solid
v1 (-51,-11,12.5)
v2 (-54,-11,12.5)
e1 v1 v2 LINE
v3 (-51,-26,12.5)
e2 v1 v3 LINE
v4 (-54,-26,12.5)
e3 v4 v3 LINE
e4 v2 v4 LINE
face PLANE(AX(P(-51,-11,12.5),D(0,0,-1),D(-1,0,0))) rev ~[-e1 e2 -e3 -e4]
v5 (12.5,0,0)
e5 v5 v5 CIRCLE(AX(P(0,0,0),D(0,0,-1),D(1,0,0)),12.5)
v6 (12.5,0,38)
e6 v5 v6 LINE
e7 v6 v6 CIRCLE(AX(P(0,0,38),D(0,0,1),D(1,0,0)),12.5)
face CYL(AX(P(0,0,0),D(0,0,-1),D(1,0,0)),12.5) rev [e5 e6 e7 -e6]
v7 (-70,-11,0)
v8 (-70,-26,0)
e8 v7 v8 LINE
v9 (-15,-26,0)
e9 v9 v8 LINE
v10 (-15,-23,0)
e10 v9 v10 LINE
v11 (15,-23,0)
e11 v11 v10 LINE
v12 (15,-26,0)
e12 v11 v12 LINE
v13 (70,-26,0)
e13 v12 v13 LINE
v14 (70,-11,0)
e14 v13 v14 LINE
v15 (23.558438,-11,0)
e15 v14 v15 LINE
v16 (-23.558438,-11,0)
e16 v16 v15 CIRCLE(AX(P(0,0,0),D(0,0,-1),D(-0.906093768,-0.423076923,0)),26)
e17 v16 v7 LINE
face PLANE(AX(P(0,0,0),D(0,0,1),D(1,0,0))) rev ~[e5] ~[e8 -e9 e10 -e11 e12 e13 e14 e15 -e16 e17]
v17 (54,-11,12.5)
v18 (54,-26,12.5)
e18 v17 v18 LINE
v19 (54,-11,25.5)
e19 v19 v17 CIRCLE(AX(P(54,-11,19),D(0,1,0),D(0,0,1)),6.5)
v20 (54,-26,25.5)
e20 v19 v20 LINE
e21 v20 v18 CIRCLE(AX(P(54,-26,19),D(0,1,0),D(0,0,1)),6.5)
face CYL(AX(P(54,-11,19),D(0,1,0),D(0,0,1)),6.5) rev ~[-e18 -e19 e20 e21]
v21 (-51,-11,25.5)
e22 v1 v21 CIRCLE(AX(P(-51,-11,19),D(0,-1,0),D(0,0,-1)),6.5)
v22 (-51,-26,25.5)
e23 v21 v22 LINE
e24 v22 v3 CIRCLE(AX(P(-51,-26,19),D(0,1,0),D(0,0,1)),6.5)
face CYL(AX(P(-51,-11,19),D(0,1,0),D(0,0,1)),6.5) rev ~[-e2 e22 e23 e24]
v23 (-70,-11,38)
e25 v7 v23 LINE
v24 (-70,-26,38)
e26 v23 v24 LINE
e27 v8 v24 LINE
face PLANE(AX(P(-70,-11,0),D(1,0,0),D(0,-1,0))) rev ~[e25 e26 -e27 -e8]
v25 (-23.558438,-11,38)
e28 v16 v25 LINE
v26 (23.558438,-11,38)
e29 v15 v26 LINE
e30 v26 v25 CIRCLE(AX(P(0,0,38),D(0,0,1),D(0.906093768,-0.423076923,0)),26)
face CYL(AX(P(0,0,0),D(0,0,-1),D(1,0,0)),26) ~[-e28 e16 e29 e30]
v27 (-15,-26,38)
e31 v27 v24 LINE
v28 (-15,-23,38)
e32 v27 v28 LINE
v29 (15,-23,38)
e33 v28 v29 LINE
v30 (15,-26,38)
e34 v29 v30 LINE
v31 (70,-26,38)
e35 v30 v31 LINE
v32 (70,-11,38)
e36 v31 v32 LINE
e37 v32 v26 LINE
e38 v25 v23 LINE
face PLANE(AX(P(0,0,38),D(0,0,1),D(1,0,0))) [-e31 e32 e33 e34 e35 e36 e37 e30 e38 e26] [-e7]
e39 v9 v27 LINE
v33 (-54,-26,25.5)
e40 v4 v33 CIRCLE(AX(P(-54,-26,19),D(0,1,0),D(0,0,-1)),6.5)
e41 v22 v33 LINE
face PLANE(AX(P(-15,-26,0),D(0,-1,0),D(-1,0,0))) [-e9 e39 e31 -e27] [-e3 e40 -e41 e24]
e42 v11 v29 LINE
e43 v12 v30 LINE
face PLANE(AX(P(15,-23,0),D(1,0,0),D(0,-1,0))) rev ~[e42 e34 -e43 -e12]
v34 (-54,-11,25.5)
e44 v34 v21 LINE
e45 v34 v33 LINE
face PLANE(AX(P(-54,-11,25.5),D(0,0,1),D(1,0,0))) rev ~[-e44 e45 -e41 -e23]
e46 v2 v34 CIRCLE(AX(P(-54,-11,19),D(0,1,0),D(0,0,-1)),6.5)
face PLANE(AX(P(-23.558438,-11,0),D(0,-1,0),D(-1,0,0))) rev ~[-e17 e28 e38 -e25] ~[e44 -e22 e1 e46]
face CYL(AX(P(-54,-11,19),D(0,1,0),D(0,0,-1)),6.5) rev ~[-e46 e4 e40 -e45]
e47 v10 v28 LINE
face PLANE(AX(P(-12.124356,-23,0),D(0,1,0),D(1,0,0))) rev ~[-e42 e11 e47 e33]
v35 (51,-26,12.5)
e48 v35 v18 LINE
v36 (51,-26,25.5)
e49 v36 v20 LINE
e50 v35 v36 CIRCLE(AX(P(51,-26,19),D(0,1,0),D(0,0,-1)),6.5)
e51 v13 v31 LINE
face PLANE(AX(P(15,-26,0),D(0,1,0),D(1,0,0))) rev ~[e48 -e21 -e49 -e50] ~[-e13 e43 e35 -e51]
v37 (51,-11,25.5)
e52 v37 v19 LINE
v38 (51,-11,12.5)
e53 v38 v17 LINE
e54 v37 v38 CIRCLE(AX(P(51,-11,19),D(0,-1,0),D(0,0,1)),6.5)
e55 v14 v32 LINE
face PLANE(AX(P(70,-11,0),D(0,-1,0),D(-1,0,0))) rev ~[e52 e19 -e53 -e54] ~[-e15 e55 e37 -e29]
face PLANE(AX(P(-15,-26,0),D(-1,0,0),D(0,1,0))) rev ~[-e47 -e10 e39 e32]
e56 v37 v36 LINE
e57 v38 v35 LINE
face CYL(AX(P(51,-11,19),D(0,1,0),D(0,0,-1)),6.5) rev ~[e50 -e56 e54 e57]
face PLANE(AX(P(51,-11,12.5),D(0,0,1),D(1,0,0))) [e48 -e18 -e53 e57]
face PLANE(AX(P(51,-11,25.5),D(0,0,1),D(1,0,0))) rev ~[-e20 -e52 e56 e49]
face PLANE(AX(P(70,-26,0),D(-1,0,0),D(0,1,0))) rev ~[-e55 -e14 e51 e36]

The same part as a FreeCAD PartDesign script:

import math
import FreeCAD as App
import Part
import Sketcher
Q = App.Units.Quantity

doc = App.newDocument("Part")
body = doc.addObject("PartDesign::Body", "Body")

# Sketch on XY plane
sketch1 = body.newObject("Sketcher::SketchObject", "Sketch")
sketch1.AttachmentSupport = (doc.getObject("XY_Plane"), [""])
sketch1.MapMode = "FlatFace"
sketch1.addGeometry(Part.LineSegment(App.Vector(-23.6, -11, 0), App.Vector(-70, -11, 0)), False)
sketch1.addGeometry(Part.LineSegment(App.Vector(-70, -11, 0), App.Vector(-70, -26, 0)), False)
sketch1.addGeometry(Part.LineSegment(App.Vector(-70, -26, 0), App.Vector(-15, -26, 0)), False)
sketch1.addGeometry(Part.LineSegment(App.Vector(-15, -26, 0), App.Vector(-15, -23, 0)), False)
sketch1.addGeometry(Part.LineSegment(App.Vector(-15, -23, 0), App.Vector(15, -23, 0)), False)
sketch1.addGeometry(Part.LineSegment(App.Vector(15, -23, 0), App.Vector(15, -26, 0)), False)
sketch1.addGeometry(Part.LineSegment(App.Vector(15, -26, 0), App.Vector(70, -26, 0)), False)
sketch1.addGeometry(Part.LineSegment(App.Vector(70, -26, 0), App.Vector(70, -11, 0)), False)
sketch1.addGeometry(Part.LineSegment(App.Vector(70, -11, 0), App.Vector(23.6, -11, 0)), False)
sketch1.addGeometry(Part.ArcOfCircle(Part.Circle(App.Vector(0, 0, 0), App.Vector(0, 0, 1), 26), math.radians(-25), math.radians(205)), False)
sketch1.addGeometry(Part.Circle(App.Vector(0, 0, 0), App.Vector(0, 0, 1), 12.5), False)
sketch1.addConstraint(Sketcher.Constraint("Coincident", 0, 2, 1, 1))
sketch1.addConstraint(Sketcher.Constraint("Coincident", 1, 2, 2, 1))
sketch1.addConstraint(Sketcher.Constraint("Coincident", 2, 2, 3, 1))
sketch1.addConstraint(Sketcher.Constraint("Coincident", 3, 2, 4, 1))
sketch1.addConstraint(Sketcher.Constraint("Coincident", 4, 2, 5, 1))
sketch1.addConstraint(Sketcher.Constraint("Coincident", 5, 2, 6, 1))
sketch1.addConstraint(Sketcher.Constraint("Coincident", 6, 2, 7, 1))
sketch1.addConstraint(Sketcher.Constraint("Coincident", 7, 2, 8, 1))
sketch1.addConstraint(Sketcher.Constraint("Coincident", 8, 2, 9, 1))
sketch1.addConstraint(Sketcher.Constraint("Coincident", 9, 2, 0, 1))
sketch1.addConstraint(Sketcher.Constraint("Horizontal", 0))
sketch1.addConstraint(Sketcher.Constraint("Vertical", 1))
sketch1.addConstraint(Sketcher.Constraint("Horizontal", 2))
sketch1.addConstraint(Sketcher.Constraint("Vertical", 3))
sketch1.addConstraint(Sketcher.Constraint("Horizontal", 4))
sketch1.addConstraint(Sketcher.Constraint("Vertical", 5))
sketch1.addConstraint(Sketcher.Constraint("Horizontal", 6))
sketch1.addConstraint(Sketcher.Constraint("Vertical", 7))
sketch1.addConstraint(Sketcher.Constraint("Horizontal", 8))
sketch1.addConstraint(Sketcher.Constraint("Coincident", 9, 3, -1, 1))
sketch1.addConstraint(Sketcher.Constraint("Coincident", 10, 3, -1, 1))
sketch1.addConstraint(Sketcher.Constraint("Symmetric", 2, 2, 5, 2, -2))
sketch1.addConstraint(Sketcher.Constraint("Symmetric", 0, 2, 7, 2, -2))
sketch1.addConstraint(Sketcher.Constraint("Diameter", 10, Q("25 mm")))
sketch1.addConstraint(Sketcher.Constraint("Radius", 9, Q("26 mm")))
sketch1.addConstraint(Sketcher.Constraint("DistanceX", 4, 1, 4, 2, Q("30 mm")))
sketch1.addConstraint(Sketcher.Constraint("DistanceY", 1, 2, 1, 1, Q("15 mm")))
sketch1.addConstraint(Sketcher.Constraint("DistanceY", 3, 1, 3, 2, Q("3 mm")))
sketch1.addConstraint(Sketcher.Constraint("DistanceX", 0, 2, -1, 1, Q("70 mm")))
sketch1.addConstraint(Sketcher.Constraint("DistanceY", 0, 2, -1, 1, Q("11 mm")))
pad1 = body.newObject("PartDesign::Pad", "Pad")
pad1.Profile = sketch1
pad1.Length = 38

# Sketch on XZ plane
sketch2 = body.newObject("Sketcher::SketchObject", "Sketch001")
sketch2.AttachmentSupport = (doc.getObject("XZ_Plane"), [""])
sketch2.MapMode = "FlatFace"
sketch2.AttachmentOffset = App.Placement(App.Vector(0, 0, 11), App.Rotation())
sketch2.addGeometry(Part.ArcOfCircle(Part.Circle(App.Vector(-51, 19, 0), App.Vector(0, 0, 1), 6.5), math.radians(-90), math.radians(90)), False)
sketch2.addGeometry(Part.LineSegment(App.Vector(-51, 12.5, 0), App.Vector(-54, 12.5, 0)), False)
sketch2.addGeometry(Part.ArcOfCircle(Part.Circle(App.Vector(-54, 19, 0), App.Vector(0, 0, 1), 6.5), math.radians(90), math.radians(270)), False)
sketch2.addGeometry(Part.LineSegment(App.Vector(-54, 25.5, 0), App.Vector(-51, 25.5, 0)), False)
sketch2.addGeometry(Part.ArcOfCircle(Part.Circle(App.Vector(51, 19, 0), App.Vector(0, 0, 1), 6.5), math.radians(90), math.radians(270)), False)
sketch2.addGeometry(Part.LineSegment(App.Vector(51, 25.5, 0), App.Vector(54, 25.5, 0)), False)
sketch2.addGeometry(Part.ArcOfCircle(Part.Circle(App.Vector(54, 19, 0), App.Vector(0, 0, 1), 6.5), math.radians(-90), math.radians(90)), False)
sketch2.addGeometry(Part.LineSegment(App.Vector(54, 12.5, 0), App.Vector(51, 12.5, 0)), False)
sketch2.addConstraint(Sketcher.Constraint("Tangent", 0, 1, 1, 1))
sketch2.addConstraint(Sketcher.Constraint("Tangent", 1, 2, 2, 2))
sketch2.addConstraint(Sketcher.Constraint("Tangent", 2, 1, 3, 1))
sketch2.addConstraint(Sketcher.Constraint("Tangent", 3, 2, 0, 2))
sketch2.addConstraint(Sketcher.Constraint("Tangent", 4, 1, 5, 1))
sketch2.addConstraint(Sketcher.Constraint("Tangent", 5, 2, 6, 2))
sketch2.addConstraint(Sketcher.Constraint("Tangent", 6, 1, 7, 1))
sketch2.addConstraint(Sketcher.Constraint("Tangent", 7, 2, 4, 2))
sketch2.addConstraint(Sketcher.Constraint("Horizontal", 1))
sketch2.addConstraint(Sketcher.Constraint("Horizontal", 3))
sketch2.addConstraint(Sketcher.Constraint("Horizontal", 5))
sketch2.addConstraint(Sketcher.Constraint("Horizontal", 7))
sketch2.addConstraint(Sketcher.Constraint("Equal", 2, 4))
sketch2.addConstraint(Sketcher.Constraint("Symmetric", 0, 3, 4, 3, -2))
sketch2.addConstraint(Sketcher.Constraint("Equal", 3, 5))
sketch2.addConstraint(Sketcher.Constraint("Radius", 0, Q("6.5 mm")))
sketch2.addConstraint(Sketcher.Constraint("DistanceX", 1, 2, 1, 1, Q("3 mm")))
sketch2.addConstraint(Sketcher.Constraint("DistanceX", 2, 3, 4, 3, Q("105 mm")))
sketch2.addConstraint(Sketcher.Constraint("DistanceY", -1, 1, 0, 3, Q("19 mm")))
pocket1 = body.newObject("PartDesign::Pocket", "Pocket")
pocket1.Profile = sketch2
pocket1.Length = 53.75
pocket1.Reversed = True

doc.recompute()
